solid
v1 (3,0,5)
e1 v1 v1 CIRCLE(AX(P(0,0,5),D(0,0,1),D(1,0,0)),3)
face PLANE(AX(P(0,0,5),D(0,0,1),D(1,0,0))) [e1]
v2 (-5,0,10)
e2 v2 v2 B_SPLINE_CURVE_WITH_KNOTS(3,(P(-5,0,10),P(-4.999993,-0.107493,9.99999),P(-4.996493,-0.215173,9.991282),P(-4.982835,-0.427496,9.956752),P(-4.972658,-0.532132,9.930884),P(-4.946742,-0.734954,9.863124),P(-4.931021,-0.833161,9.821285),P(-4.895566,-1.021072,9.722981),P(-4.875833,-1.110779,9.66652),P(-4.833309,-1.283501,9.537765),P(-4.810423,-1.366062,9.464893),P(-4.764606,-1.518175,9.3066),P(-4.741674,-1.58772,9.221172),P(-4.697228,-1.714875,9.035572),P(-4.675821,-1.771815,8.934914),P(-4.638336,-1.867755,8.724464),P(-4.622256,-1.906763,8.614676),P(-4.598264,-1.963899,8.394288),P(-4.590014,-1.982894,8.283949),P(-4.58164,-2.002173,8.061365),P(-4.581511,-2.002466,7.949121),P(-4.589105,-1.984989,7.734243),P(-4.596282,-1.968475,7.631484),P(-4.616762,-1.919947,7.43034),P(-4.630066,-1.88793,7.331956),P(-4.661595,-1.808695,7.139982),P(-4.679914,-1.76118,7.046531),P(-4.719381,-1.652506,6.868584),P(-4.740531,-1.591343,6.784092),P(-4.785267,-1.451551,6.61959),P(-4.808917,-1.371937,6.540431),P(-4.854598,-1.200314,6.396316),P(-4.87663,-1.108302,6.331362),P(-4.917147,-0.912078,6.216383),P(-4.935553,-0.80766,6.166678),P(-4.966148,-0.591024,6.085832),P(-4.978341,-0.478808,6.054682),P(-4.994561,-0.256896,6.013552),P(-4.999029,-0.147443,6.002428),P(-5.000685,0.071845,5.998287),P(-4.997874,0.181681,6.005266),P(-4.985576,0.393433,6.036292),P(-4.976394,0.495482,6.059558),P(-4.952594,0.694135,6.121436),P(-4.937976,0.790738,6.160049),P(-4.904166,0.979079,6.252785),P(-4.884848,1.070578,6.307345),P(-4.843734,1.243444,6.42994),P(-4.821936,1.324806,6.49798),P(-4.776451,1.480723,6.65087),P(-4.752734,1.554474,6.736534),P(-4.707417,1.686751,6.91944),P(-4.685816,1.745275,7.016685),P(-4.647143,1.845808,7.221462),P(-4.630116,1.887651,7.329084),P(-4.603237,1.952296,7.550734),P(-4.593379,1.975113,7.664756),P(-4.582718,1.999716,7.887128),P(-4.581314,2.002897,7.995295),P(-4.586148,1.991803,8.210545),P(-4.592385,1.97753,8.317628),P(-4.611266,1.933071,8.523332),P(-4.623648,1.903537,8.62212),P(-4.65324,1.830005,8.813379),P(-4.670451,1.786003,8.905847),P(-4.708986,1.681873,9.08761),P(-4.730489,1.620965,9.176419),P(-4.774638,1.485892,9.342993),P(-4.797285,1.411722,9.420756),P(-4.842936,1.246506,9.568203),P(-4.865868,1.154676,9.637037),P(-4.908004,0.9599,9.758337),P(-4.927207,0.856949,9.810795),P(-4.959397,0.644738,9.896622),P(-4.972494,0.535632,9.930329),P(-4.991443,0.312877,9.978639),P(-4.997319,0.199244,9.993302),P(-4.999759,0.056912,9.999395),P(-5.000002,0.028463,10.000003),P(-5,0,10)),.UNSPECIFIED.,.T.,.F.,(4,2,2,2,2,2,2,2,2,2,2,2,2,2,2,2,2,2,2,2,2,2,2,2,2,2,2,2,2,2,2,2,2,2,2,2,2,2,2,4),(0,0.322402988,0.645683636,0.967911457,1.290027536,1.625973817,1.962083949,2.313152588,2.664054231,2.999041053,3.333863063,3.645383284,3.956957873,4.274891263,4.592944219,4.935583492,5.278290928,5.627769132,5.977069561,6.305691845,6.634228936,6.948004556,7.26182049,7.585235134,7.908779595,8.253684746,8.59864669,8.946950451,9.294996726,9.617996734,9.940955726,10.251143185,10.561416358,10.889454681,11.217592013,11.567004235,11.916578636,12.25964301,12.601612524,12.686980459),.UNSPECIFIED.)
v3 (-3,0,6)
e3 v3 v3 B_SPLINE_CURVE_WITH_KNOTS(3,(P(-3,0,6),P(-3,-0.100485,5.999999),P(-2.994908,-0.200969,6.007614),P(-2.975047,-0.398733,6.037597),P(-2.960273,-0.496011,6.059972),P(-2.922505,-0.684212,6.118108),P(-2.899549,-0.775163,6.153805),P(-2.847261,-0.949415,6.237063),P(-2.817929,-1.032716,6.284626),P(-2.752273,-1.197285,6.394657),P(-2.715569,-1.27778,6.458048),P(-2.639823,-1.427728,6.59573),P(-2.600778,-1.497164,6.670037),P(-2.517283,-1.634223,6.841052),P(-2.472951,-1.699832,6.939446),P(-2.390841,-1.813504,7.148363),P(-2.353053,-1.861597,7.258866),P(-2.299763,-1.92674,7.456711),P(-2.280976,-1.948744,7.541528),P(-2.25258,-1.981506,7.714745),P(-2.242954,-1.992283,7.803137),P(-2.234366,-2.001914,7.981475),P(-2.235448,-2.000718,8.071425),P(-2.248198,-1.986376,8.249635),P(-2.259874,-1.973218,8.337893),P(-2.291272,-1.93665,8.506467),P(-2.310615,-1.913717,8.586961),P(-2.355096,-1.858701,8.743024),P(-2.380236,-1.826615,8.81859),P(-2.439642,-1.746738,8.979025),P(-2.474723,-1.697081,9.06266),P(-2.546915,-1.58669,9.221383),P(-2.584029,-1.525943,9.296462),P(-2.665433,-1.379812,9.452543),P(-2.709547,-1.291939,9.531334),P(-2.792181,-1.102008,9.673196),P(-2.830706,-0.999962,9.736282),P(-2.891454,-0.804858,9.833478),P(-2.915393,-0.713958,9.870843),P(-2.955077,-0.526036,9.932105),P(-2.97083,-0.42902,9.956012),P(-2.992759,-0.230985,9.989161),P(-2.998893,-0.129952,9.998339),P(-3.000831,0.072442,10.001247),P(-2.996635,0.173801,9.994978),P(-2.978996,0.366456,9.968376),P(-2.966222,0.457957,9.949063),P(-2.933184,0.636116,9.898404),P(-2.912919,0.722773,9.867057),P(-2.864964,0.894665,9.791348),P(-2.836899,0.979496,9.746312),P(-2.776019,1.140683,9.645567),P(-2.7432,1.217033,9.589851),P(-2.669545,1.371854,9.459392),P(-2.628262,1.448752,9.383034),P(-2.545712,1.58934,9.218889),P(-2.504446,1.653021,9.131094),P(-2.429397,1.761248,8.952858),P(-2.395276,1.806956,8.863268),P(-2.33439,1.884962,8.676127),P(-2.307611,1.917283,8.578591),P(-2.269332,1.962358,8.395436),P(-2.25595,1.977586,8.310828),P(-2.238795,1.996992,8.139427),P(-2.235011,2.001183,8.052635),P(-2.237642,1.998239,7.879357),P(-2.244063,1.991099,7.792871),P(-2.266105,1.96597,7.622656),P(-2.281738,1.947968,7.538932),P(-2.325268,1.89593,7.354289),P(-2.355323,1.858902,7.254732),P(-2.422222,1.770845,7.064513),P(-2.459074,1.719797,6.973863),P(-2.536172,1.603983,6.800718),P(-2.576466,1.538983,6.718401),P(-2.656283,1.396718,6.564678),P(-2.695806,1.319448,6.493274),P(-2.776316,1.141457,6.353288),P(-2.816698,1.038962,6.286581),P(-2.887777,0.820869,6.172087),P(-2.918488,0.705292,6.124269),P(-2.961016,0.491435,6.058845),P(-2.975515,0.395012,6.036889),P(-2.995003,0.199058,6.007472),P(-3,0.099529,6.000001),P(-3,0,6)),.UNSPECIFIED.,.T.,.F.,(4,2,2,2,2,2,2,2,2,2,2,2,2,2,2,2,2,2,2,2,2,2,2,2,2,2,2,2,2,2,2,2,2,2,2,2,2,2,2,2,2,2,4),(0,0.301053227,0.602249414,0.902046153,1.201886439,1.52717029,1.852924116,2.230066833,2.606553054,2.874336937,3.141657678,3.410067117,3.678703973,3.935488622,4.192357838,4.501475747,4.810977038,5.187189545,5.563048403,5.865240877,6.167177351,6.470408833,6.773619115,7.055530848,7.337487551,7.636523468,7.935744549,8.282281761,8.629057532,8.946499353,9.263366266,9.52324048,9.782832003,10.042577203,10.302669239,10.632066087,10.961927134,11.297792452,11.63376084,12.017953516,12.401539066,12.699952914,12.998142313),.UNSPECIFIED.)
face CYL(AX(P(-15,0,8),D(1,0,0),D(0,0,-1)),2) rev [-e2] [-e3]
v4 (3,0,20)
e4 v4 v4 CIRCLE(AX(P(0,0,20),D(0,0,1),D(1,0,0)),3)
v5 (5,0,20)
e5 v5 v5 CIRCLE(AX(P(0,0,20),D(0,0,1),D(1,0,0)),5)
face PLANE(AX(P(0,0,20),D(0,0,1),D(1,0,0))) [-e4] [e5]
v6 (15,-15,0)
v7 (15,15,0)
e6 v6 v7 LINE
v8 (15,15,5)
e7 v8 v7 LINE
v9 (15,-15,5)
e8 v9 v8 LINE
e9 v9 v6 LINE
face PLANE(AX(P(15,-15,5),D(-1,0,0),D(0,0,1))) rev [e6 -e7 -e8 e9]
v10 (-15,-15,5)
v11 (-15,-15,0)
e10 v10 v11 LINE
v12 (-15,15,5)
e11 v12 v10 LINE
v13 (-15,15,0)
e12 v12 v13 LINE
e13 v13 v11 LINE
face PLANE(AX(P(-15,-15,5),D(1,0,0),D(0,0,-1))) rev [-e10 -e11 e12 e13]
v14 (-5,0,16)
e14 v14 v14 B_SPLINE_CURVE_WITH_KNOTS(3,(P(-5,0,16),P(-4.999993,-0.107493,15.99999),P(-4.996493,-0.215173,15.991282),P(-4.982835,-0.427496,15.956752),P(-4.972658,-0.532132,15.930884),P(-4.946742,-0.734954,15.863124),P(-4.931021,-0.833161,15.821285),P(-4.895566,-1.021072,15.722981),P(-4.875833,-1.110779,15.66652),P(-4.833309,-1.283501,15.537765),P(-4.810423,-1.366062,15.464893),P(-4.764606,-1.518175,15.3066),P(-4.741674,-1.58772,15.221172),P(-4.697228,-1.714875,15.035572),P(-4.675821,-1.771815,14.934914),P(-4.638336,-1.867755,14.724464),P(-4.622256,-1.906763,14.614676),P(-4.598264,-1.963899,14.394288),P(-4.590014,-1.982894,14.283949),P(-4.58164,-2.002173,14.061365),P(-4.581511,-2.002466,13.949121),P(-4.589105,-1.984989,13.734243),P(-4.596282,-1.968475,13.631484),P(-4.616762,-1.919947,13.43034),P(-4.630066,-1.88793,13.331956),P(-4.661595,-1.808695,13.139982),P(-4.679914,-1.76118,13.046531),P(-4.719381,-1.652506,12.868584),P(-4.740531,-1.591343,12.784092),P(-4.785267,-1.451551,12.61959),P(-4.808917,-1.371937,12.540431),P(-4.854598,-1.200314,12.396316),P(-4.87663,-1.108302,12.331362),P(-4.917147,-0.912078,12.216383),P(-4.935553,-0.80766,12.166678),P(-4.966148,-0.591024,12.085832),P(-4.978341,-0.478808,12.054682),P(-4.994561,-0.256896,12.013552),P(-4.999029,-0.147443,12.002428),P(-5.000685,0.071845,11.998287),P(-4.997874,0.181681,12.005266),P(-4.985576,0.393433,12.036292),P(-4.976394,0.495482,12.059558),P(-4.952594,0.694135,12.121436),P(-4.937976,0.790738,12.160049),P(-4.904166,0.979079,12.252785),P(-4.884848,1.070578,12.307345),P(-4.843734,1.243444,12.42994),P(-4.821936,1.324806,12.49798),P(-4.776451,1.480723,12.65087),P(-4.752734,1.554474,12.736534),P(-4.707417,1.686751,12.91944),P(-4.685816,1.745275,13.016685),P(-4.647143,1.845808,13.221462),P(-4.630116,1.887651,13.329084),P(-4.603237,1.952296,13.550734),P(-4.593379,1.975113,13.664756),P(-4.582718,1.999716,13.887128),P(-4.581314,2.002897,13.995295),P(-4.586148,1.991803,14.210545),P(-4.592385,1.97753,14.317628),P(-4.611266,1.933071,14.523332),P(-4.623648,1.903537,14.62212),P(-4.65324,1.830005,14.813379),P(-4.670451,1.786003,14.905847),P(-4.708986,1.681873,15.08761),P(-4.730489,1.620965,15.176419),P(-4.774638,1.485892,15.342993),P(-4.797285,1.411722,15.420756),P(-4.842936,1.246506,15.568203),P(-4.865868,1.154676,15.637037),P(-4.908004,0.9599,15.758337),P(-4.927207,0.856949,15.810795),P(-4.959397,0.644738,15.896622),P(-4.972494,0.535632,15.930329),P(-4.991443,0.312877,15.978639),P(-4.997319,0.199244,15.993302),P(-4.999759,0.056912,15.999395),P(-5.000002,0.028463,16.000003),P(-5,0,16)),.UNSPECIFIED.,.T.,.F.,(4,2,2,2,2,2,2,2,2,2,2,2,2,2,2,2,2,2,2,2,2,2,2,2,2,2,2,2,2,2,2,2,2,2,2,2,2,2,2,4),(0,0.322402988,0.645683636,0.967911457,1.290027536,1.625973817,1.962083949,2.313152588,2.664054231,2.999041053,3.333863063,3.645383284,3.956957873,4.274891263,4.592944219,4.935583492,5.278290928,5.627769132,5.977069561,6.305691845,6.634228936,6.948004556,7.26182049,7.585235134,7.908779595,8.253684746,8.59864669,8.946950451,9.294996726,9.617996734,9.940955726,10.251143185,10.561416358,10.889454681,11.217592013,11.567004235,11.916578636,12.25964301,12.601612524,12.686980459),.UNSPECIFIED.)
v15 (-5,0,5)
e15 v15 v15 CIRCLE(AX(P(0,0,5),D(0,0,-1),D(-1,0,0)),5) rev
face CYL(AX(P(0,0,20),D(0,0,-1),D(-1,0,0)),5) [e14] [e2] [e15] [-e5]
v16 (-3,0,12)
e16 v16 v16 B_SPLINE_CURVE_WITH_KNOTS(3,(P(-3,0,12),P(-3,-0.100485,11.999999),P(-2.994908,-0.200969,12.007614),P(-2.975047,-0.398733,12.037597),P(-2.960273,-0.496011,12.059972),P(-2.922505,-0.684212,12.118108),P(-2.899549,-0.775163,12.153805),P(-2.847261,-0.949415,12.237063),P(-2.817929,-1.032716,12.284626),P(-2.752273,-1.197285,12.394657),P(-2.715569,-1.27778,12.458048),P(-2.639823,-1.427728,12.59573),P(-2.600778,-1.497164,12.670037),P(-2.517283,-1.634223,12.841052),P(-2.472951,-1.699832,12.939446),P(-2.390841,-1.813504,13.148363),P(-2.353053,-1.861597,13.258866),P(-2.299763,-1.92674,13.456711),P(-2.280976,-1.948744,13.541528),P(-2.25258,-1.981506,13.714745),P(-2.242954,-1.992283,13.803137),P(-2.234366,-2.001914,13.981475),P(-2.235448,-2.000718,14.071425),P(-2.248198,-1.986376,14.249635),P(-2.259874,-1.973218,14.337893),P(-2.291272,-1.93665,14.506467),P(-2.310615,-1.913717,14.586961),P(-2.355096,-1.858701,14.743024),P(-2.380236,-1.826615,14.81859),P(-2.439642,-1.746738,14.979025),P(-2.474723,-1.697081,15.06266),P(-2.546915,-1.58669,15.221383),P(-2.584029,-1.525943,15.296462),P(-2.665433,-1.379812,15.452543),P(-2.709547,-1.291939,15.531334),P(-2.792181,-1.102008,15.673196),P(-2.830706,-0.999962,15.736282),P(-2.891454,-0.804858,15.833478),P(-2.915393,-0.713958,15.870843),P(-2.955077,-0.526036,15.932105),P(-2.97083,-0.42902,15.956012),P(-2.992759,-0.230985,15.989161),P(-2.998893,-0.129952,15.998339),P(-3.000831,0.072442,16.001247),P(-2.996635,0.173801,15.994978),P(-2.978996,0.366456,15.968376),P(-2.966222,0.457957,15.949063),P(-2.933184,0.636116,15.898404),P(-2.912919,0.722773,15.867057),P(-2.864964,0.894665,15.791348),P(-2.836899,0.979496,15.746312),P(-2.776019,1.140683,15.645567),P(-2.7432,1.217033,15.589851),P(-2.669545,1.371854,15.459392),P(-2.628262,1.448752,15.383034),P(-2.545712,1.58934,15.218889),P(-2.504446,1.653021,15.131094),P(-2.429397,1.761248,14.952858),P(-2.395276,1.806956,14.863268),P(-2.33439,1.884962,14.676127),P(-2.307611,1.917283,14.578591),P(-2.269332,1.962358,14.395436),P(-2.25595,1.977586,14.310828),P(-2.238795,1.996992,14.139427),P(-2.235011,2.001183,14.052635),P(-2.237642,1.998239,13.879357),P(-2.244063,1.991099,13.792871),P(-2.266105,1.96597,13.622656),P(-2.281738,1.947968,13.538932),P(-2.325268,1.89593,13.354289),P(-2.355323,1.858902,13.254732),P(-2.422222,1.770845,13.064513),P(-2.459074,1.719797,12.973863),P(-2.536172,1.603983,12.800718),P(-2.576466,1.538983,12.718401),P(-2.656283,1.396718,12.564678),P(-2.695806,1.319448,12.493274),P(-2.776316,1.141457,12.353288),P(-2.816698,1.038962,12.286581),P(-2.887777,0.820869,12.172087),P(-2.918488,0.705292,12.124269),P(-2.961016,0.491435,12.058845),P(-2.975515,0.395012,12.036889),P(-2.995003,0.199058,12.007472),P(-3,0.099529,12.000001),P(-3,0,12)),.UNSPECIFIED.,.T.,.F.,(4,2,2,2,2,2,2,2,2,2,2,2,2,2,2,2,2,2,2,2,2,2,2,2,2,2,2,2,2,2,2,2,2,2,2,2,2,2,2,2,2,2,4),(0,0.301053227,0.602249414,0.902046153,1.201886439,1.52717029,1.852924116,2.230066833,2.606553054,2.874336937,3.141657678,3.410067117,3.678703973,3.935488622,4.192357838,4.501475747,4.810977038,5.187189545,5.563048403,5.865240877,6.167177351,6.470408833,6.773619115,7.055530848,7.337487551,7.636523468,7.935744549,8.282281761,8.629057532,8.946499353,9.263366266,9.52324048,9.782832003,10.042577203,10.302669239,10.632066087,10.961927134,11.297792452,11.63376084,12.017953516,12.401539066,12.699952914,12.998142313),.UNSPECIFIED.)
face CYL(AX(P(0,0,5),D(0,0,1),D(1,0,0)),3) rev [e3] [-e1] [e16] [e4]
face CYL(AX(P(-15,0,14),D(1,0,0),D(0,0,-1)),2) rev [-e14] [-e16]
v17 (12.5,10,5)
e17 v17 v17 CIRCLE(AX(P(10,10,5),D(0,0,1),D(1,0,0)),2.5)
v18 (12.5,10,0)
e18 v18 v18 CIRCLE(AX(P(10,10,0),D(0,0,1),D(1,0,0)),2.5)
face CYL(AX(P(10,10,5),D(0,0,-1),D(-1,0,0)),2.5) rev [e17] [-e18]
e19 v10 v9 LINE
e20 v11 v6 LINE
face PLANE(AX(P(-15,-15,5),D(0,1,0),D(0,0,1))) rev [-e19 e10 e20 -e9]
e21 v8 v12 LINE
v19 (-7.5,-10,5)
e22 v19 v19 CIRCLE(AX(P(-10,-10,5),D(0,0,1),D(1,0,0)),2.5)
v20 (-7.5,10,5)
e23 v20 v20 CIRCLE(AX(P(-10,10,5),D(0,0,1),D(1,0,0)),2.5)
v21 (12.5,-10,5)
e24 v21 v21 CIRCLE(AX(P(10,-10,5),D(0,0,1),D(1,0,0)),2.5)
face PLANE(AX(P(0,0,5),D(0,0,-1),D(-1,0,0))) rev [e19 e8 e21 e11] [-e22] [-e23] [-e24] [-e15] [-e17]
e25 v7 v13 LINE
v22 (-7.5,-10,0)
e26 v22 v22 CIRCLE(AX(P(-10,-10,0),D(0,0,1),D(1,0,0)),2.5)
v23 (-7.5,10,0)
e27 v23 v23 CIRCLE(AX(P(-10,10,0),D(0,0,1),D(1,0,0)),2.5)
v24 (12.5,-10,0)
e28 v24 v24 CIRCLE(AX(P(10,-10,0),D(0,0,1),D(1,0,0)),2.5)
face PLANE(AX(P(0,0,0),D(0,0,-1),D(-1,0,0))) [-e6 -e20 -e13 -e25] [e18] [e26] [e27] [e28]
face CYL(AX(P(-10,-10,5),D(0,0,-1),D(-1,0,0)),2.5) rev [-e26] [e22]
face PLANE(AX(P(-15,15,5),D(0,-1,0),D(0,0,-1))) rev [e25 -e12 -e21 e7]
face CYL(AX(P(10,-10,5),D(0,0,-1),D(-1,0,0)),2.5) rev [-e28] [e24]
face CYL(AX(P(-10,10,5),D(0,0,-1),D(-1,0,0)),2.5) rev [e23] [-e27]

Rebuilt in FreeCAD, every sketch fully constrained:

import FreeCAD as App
import Part
import Sketcher
Q = App.Units.Quantity

doc = App.newDocument("Part")
body = doc.addObject("PartDesign::Body", "Body")

# Sketch on XY plane
sketch1 = doc.addObject("Sketcher::SketchObject", "Sketch")
body.addObject(sketch1)
sketch1.AttachmentSupport = (doc.XY_Plane, [""])
sketch1.MapMode = "FlatFace"
sketch1.addGeometry(Part.LineSegment(App.Vector(-15, 15, 0), App.Vector(-15, -15, 0)), False)
sketch1.addGeometry(Part.LineSegment(App.Vector(-15, -15, 0), App.Vector(15, -15, 0)), False)
sketch1.addGeometry(Part.LineSegment(App.Vector(15, -15, 0), App.Vector(15, 15, 0)), False)
sketch1.addGeometry(Part.LineSegment(App.Vector(15, 15, 0), App.Vector(-15, 15, 0)), False)
sketch1.addGeometry(Part.Circle(App.Vector(-10, -10, 0), App.Vector(0, 0, 1), 2.5), False)
sketch1.addGeometry(Part.Circle(App.Vector(10, -10, 0), App.Vector(0, 0, 1), 2.5), False)
sketch1.addGeometry(Part.Circle(App.Vector(-10, 10, 0), App.Vector(0, 0, 1), 2.5), False)
sketch1.addGeometry(Part.Circle(App.Vector(10, 10, 0), App.Vector(0, 0, 1), 2.5), False)
sketch1.addConstraint(Sketcher.Constraint("Coincident", 0, 2, 1, 1))
sketch1.addConstraint(Sketcher.Constraint("Coincident", 1, 2, 2, 1))
sketch1.addConstraint(Sketcher.Constraint("Coincident", 2, 2, 3, 1))
sketch1.addConstraint(Sketcher.Constraint("Coincident", 3, 2, 0, 1))
sketch1.addConstraint(Sketcher.Constraint("Vertical", 0))
sketch1.addConstraint(Sketcher.Constraint("Horizontal", 1))
sketch1.addConstraint(Sketcher.Constraint("Vertical", 2))
sketch1.addConstraint(Sketcher.Constraint("Horizontal", 3))
sketch1.addConstraint(Sketcher.Constraint("Equal", 4, 5))
sketch1.addConstraint(Sketcher.Constraint("Equal", 5, 6))
sketch1.addConstraint(Sketcher.Constraint("Equal", 6, 7))
sketch1.addConstraint(Sketcher.Constraint("Symmetric", 5, 3, 6, 3, -1, 1))
sketch1.addConstraint(Sketcher.Constraint("Symmetric", 4, 3, 7, 3, -1, 1))
sketch1.addConstraint(Sketcher.Constraint("Symmetric", 0, 2, 2, 2, -1, 1))
sketch1.addConstraint(Sketcher.Constraint("Symmetric", 4, 3, 5, 3, -2))
sketch1.addConstraint(Sketcher.Constraint("Equal", 3, 0))
sketch1.addConstraint(Sketcher.Constraint("Diameter", 4, Q("5 mm")))
sketch1.addConstraint(Sketcher.Constraint("DistanceX", 1, 1, 1, 2, Q("30 mm")))
sketch1.addConstraint(Sketcher.Constraint("DistanceX", 4, 3, -1, 1, Q("10 mm")))
sketch1.addConstraint(Sketcher.Constraint("DistanceY", 4, 3, -1, 1, Q("10 mm")))
pad1 = doc.addObject("PartDesign::Pad", "Pad")
body.addObject(pad1)
pad1.Profile = sketch1
pad1.Length = 5

# Sketch on XY plane
sketch2 = doc.addObject("Sketcher::SketchObject", "Sketch001")
body.addObject(sketch2)
sketch2.AttachmentSupport = (doc.XY_Plane, [""])
sketch2.MapMode = "FlatFace"
sketch2.AttachmentOffset = App.Placement(App.Vector(0, 0, 5), App.Rotation())
sketch2.addGeometry(Part.Circle(App.Vector(0, 0, 0), App.Vector(0, 0, 1), 5), False)
sketch2.addConstraint(Sketcher.Constraint("Coincident", 0, 3, -1, 1))
sketch2.addConstraint(Sketcher.Constraint("Diameter", 0, Q("10 mm")))
pad2 = doc.addObject("PartDesign::Pad", "Pad001")
body.addObject(pad2)
pad2.Profile = sketch2
pad2.Length = 15

# Sketch on XY plane
sketch3 = doc.addObject("Sketcher::SketchObject", "Sketch002")
body.addObject(sketch3)
sketch3.AttachmentSupport = (doc.XY_Plane, [""])
sketch3.MapMode = "FlatFace"
sketch3.AttachmentOffset = App.Placement(App.Vector(0, 0, 20), App.Rotation())
sketch3.addGeometry(Part.Circle(App.Vector(0, 0, 0), App.Vector(0, 0, 1), 3), False)
sketch3.addConstraint(Sketcher.Constraint("Coincident", 0, 3, -1, 1))
sketch3.addConstraint(Sketcher.Constraint("Diameter", 0, Q("6 mm")))
pocket1 = doc.addObject("PartDesign::Pocket", "Pocket")
body.addObject(pocket1)
pocket1.Profile = sketch3
pocket1.Length = 15

# Sketch on YZ plane
sketch4 = doc.addObject("Sketcher::SketchObject", "Sketch003")
body.addObject(sketch4)
sketch4.AttachmentSupport = (doc.YZ_Plane, [""])
sketch4.MapMode = "FlatFace"
sketch4.addGeometry(Part.Circle(App.Vector(0, 8, 0), App.Vector(0, 0, 1), 2), False)
sketch4.addGeometry(Part.Circle(App.Vector(0, 14, 0), App.Vector(0, 0, 1), 2), False)
sketch4.addConstraint(Sketcher.Constraint("Equal", 0, 1))
sketch4.addConstraint(Sketcher.Constraint("PointOnObject", 0, 3, -2))
sketch4.addConstraint(Sketcher.Constraint("PointOnObject", 1, 3, -2))
sketch4.addConstraint(Sketcher.Constraint("Diameter", 0, Q("4 mm")))
sketch4.addConstraint(Sketcher.Constraint("DistanceY", -1, 1, 0, 3, Q("8 mm")))
sketch4.addConstraint(Sketcher.Constraint("DistanceY", -1, 1, 1, 3, Q("14 mm")))
pocket2 = doc.addObject("PartDesign::Pocket", "Pocket001")
body.addObject(pocket2)
pocket2.Profile = sketch4
pocket2.Length = 15

doc.recompute()
